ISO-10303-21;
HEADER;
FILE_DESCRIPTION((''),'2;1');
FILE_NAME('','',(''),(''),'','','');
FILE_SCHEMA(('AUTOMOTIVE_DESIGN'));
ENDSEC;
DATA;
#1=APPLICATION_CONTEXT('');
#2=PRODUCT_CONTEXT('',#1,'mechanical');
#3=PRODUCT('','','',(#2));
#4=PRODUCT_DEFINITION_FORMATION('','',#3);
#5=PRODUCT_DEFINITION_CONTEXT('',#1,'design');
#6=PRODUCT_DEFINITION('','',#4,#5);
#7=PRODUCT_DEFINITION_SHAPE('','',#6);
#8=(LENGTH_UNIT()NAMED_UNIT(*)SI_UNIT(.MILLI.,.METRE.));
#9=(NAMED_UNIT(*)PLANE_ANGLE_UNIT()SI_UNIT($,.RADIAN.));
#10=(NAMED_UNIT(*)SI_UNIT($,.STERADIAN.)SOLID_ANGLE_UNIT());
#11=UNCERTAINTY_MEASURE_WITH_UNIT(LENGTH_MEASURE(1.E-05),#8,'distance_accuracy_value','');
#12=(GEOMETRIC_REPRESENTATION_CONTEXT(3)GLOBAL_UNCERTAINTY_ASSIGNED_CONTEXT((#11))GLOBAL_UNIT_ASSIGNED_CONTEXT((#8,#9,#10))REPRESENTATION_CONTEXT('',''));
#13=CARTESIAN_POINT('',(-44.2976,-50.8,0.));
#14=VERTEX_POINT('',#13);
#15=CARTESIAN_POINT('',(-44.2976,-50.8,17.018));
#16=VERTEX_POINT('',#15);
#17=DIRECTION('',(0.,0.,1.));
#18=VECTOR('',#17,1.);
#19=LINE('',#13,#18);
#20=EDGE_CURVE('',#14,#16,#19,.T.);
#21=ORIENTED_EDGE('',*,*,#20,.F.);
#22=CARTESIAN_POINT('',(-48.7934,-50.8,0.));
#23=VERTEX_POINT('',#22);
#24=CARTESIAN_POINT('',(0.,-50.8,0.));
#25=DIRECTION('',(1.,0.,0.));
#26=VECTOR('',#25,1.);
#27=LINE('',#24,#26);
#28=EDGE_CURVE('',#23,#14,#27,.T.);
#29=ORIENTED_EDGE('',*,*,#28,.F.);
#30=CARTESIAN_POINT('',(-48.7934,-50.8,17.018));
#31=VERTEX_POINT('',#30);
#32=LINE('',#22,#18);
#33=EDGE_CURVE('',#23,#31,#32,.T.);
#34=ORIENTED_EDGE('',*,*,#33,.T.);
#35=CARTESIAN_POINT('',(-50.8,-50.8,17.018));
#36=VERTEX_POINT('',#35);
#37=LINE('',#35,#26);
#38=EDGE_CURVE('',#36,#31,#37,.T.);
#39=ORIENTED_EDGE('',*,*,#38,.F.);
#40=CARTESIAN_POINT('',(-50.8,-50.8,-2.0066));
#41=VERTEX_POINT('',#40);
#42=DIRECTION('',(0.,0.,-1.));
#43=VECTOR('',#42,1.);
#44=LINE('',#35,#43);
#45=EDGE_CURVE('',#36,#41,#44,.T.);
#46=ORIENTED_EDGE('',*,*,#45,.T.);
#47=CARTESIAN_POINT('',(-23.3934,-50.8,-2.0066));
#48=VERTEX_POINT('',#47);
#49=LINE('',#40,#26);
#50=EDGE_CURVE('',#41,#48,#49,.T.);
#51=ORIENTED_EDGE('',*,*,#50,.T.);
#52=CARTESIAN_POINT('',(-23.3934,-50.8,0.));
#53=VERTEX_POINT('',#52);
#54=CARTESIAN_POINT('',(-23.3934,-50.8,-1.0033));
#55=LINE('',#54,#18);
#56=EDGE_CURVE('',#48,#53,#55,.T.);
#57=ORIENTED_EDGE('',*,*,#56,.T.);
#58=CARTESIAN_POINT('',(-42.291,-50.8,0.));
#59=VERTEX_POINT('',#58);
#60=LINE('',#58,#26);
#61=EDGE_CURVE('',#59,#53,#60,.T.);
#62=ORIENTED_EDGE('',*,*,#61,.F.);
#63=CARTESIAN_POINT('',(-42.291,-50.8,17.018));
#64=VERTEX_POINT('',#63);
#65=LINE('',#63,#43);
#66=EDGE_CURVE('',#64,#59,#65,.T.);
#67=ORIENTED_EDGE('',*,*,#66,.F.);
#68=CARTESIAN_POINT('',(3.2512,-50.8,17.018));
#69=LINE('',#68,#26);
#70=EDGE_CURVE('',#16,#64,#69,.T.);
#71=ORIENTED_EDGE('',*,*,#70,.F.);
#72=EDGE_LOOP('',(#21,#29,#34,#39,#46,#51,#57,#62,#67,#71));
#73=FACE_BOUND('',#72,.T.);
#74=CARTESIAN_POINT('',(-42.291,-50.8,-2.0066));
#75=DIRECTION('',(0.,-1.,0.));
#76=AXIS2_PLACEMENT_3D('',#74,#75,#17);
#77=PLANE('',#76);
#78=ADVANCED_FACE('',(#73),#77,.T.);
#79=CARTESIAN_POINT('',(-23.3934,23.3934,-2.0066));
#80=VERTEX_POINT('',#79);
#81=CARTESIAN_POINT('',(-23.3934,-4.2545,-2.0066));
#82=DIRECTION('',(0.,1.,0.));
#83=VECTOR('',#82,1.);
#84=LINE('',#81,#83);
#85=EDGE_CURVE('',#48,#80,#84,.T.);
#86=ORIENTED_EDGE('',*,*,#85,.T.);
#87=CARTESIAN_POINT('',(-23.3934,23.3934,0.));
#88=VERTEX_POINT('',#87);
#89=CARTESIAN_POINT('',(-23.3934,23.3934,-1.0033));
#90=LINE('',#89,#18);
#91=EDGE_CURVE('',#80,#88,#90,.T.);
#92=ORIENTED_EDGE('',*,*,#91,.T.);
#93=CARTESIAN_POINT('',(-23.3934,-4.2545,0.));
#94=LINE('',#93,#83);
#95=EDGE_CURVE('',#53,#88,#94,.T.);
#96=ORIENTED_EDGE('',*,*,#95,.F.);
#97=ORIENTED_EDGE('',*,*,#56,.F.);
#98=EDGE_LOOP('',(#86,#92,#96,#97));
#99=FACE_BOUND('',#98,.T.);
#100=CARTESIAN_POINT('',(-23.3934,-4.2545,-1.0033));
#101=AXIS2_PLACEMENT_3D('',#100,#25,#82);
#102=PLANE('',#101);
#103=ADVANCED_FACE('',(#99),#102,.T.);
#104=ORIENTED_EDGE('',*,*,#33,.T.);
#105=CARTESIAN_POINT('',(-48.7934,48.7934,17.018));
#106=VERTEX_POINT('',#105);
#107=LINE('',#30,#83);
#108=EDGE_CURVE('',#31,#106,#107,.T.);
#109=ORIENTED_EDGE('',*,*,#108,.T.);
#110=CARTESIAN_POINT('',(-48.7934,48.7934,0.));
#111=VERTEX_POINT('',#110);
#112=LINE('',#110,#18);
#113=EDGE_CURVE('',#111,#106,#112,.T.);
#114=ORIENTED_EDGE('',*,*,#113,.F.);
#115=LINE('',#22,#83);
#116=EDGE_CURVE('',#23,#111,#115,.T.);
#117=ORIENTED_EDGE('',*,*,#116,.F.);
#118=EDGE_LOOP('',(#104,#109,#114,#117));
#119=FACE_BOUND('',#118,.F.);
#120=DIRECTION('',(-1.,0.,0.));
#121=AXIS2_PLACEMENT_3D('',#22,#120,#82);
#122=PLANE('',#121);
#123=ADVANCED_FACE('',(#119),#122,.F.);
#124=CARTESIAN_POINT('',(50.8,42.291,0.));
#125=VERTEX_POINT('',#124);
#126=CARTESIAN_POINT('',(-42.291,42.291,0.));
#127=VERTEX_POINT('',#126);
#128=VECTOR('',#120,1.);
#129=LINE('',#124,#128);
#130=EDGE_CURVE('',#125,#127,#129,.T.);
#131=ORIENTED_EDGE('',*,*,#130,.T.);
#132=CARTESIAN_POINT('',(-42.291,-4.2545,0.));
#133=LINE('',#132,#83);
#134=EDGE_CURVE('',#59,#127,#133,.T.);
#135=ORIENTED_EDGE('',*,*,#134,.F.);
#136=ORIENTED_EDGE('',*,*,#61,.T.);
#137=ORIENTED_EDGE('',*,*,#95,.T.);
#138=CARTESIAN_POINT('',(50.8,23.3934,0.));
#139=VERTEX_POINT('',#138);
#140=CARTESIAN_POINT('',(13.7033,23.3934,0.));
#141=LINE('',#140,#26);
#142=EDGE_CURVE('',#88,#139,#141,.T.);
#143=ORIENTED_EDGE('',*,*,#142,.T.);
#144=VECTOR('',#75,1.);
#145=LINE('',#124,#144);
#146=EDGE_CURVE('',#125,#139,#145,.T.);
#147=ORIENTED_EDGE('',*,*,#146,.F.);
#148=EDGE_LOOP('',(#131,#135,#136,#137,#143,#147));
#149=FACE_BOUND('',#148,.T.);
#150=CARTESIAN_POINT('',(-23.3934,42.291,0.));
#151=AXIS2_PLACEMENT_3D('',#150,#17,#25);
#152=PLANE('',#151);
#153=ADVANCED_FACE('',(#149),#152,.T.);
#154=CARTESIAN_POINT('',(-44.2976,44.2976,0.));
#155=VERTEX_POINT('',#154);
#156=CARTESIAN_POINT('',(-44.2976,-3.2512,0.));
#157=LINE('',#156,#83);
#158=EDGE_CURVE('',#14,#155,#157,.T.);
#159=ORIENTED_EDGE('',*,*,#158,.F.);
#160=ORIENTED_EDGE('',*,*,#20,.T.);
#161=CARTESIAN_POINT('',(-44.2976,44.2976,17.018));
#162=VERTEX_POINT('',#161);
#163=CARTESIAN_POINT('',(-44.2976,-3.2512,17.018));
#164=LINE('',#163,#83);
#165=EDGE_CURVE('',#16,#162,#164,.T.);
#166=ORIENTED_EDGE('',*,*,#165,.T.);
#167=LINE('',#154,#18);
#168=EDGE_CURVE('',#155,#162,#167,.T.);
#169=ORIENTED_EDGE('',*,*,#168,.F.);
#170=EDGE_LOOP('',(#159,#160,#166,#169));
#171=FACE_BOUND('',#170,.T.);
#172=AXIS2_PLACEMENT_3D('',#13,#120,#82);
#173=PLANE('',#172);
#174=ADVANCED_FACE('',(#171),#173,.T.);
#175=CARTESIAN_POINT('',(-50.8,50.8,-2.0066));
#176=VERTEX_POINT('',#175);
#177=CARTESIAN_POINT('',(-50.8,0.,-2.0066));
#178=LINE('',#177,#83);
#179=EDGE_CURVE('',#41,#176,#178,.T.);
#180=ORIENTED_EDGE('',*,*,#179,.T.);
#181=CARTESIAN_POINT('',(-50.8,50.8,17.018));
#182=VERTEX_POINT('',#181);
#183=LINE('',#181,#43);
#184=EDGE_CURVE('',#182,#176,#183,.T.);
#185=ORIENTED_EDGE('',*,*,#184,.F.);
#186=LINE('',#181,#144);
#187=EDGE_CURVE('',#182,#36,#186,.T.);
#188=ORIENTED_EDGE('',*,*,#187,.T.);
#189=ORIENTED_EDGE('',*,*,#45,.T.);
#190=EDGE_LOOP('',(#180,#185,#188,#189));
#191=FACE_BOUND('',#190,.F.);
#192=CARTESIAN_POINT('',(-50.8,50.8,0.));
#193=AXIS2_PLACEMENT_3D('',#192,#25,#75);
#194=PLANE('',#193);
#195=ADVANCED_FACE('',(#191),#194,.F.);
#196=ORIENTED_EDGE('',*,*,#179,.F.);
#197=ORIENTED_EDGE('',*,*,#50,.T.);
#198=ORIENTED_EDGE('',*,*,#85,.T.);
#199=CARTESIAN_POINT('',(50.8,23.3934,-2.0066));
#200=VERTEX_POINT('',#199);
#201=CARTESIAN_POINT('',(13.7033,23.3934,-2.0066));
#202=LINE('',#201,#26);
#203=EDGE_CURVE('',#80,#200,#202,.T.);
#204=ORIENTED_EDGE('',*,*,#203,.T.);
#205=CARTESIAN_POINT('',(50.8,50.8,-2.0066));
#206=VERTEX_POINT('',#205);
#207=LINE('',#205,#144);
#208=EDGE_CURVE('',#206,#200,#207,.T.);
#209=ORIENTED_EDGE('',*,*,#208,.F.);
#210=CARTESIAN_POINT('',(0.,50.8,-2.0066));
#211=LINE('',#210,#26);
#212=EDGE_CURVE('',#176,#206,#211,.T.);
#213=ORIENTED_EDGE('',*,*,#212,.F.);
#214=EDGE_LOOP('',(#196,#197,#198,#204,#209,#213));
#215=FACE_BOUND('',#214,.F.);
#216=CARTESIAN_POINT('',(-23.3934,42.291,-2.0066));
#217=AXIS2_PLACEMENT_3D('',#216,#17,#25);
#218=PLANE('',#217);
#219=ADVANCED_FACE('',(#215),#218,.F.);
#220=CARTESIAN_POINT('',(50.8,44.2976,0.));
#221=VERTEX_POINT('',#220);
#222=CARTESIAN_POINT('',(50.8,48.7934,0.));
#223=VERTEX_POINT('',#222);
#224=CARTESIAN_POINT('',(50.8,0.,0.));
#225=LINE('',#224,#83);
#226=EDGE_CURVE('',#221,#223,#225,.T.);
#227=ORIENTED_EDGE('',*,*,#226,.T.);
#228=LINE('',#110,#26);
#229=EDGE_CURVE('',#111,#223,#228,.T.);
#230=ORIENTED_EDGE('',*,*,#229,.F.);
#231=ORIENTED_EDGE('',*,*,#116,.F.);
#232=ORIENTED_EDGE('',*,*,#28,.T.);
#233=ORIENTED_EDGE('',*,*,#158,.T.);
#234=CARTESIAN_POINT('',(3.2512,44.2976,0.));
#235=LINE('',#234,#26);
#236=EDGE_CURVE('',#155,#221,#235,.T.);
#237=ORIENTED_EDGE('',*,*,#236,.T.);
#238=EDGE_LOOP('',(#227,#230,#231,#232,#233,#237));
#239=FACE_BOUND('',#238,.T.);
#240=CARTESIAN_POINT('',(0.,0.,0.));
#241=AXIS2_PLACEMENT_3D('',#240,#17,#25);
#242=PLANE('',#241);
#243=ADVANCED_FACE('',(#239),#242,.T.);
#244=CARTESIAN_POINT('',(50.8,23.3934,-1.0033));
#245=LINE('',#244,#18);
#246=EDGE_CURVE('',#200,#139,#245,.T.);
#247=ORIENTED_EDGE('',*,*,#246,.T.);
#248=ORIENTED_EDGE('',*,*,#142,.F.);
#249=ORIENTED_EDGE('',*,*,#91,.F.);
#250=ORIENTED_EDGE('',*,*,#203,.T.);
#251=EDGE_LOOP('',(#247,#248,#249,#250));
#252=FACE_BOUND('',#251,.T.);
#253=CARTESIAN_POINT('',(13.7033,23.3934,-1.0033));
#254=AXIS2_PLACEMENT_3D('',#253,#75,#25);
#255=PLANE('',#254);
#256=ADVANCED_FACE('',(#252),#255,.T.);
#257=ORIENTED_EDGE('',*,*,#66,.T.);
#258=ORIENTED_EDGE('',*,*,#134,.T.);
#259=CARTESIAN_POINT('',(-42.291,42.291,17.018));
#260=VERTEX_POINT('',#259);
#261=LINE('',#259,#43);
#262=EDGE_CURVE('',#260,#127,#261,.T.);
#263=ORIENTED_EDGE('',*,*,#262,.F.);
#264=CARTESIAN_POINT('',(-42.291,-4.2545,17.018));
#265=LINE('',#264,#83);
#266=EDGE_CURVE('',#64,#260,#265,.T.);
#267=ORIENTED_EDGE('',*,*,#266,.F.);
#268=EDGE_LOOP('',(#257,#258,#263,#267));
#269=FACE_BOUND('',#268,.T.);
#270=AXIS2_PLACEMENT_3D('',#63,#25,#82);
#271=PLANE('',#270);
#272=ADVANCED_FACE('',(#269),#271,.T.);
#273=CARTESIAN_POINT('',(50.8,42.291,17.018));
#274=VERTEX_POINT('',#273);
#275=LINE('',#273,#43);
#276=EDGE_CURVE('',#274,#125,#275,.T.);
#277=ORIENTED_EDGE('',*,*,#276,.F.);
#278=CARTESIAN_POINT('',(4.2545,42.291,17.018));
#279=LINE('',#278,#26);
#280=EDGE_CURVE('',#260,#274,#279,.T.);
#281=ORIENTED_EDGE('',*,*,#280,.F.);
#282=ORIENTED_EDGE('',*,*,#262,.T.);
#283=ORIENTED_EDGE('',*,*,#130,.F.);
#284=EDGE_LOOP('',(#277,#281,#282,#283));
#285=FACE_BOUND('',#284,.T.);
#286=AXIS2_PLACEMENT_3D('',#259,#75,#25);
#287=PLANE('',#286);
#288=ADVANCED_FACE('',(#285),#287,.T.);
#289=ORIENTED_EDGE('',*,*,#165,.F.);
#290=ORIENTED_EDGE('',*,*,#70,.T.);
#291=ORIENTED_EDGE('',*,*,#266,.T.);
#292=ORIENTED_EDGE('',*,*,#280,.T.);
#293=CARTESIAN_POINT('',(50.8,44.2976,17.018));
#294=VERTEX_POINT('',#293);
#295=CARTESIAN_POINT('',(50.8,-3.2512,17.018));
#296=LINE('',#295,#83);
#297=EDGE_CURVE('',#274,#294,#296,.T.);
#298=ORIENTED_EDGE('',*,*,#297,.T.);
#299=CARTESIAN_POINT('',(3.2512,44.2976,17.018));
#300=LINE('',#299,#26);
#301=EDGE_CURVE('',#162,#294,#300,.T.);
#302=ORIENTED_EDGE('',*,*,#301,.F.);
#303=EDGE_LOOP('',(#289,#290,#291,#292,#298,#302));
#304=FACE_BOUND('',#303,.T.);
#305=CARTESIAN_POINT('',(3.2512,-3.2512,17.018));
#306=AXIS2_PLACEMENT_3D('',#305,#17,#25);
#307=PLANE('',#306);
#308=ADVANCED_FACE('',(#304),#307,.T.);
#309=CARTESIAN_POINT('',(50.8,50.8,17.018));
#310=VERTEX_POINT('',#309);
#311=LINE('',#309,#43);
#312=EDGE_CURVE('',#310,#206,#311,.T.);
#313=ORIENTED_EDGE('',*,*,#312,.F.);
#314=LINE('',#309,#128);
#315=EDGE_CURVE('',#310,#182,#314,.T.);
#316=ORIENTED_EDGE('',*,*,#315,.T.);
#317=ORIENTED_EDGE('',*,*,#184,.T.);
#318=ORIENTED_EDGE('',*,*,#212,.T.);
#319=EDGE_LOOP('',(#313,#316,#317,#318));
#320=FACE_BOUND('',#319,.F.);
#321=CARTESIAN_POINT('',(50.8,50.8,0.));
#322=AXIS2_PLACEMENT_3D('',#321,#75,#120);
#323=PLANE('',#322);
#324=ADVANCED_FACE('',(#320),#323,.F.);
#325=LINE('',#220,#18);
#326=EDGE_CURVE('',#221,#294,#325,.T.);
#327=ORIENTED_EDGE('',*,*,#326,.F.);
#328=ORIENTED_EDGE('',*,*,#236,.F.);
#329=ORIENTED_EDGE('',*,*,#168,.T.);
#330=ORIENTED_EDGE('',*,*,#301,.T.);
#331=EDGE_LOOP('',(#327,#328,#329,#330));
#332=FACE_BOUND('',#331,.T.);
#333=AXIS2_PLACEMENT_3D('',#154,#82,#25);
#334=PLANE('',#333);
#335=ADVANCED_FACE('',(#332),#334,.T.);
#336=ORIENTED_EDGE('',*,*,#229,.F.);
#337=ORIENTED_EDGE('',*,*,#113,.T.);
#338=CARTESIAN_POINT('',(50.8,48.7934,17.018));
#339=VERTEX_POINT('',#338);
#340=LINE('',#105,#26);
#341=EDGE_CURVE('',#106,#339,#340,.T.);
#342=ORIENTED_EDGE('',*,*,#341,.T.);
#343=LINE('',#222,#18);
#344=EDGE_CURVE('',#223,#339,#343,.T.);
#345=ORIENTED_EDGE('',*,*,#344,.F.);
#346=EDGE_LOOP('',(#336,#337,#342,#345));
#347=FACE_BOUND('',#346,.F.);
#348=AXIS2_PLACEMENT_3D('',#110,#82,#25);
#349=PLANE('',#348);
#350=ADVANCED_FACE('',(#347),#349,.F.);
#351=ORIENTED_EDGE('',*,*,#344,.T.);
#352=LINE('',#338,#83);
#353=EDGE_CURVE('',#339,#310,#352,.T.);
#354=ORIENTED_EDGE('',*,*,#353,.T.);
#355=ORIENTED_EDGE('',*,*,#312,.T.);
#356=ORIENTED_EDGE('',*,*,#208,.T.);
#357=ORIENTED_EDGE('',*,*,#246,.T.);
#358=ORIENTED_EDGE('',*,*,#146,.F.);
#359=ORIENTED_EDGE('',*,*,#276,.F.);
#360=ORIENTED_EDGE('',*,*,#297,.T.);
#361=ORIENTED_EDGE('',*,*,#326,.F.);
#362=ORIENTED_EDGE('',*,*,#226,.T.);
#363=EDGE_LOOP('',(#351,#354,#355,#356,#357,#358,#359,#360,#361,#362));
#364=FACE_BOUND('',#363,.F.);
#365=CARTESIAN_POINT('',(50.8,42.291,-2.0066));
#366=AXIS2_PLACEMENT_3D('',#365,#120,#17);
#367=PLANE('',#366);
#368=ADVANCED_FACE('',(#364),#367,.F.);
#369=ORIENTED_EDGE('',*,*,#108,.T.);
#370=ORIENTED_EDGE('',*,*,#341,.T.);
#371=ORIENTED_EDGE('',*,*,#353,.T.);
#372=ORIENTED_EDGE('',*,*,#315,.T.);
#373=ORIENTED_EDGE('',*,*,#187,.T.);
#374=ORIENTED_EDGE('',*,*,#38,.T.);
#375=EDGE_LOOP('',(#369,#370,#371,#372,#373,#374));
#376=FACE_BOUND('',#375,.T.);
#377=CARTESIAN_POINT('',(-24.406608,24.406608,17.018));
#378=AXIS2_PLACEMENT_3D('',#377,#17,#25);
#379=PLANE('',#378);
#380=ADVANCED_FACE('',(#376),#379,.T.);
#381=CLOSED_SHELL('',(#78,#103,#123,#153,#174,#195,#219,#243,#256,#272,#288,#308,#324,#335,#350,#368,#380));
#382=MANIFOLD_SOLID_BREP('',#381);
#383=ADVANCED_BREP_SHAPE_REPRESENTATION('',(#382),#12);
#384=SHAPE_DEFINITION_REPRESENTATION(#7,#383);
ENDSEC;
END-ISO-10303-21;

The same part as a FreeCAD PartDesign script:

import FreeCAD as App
import Part
import Sketcher

V = App.Vector
Q = App.Units.Quantity


def add_polygon(sketch, points):
    """Adds a closed chain of lines whose ends are joined by coincident constraints."""
    first, n = sketch.GeometryCount, len(points)
    for a, b in zip(points, points[1:] + points[:1]):
        sketch.addGeometry(Part.LineSegment(App.Vector(*a, 0), App.Vector(*b, 0)), False)
    for i in range(n):
        sketch.addConstraint(Sketcher.Constraint("Coincident", first + i, 2, first + (i + 1) % n, 1))

doc = App.newDocument("Part")
body = doc.addObject("PartDesign::Body", "Body")

# Sketch on XY plane
sketch1 = body.newObject("Sketcher::SketchObject", "Sketch")
sketch1.AttachmentSupport = (doc.getObject("XY_Plane"), [""])
sketch1.MapMode = "FlatFace"
add_polygon(sketch1, [(-51, 51), (-51, -51), (51, -51), (51, 51)])  # lines 0-3
sketch1.addConstraint([
    Sketcher.Constraint("Vertical", 0),
    Sketcher.Constraint("Horizontal", 1),
    Sketcher.Constraint("Vertical", 2),
    Sketcher.Constraint("Horizontal", 3),
    Sketcher.Constraint("Symmetric", 0, 2, 2, 2, -1, 1),
    Sketcher.Constraint("Equal", 3, 0),
    Sketcher.Constraint("DistanceX", 1, 1, 1, 2, Q("4 in")),
])
pad1 = body.newObject("PartDesign::Pad", "Pad")
pad1.Profile = sketch1
pad1.Length = Q("0.079 in")
pad1.Reversed = True

# Sketch on XY plane
sketch2 = body.newObject("Sketcher::SketchObject", "Sketch001")
sketch2.AttachmentSupport = (doc.getObject("XY_Plane"), [""])
sketch2.MapMode = "FlatFace"
add_polygon(sketch2, [(-50.8, -50.8), (-48.8, -50.8), (-48.8, 48.8), (50.8, 48.8), (50.8, 50.8), (-50.8, 50.8)])  # lines 0-5
sketch2.addConstraint([
    Sketcher.Constraint("Horizontal", 0),
    Sketcher.Constraint("Vertical", 1),
    Sketcher.Constraint("Horizontal", 2),
    Sketcher.Constraint("Vertical", 3),
    Sketcher.Constraint("Horizontal", 4),
    Sketcher.Constraint("Vertical", 5),
    Sketcher.Constraint("Symmetric", 3, 2, 5, 2, -1, 1),
    Sketcher.Constraint("Equal", 2, 1),
    Sketcher.Constraint("Equal", 0, 3),
    Sketcher.Constraint("DistanceX", 4, 2, 4, 1, Q("4 in")),
    Sketcher.Constraint("DistanceX", 0, 1, 0, 2, Q("0.079 in")),
])
pad2 = body.newObject("PartDesign::Pad", "Pad001")
pad2.Profile = sketch2
pad2.Length = Q("0.67 in")

# Sketch on XY plane
sketch3 = body.newObject("Sketcher::SketchObject", "Sketch002")
sketch3.AttachmentSupport = (doc.getObject("XY_Plane"), [""])
sketch3.MapMode = "FlatFace"
add_polygon(sketch3, [(-44, 44), (-44, -51), (51, -51), (51, 44)])  # lines 0-3
sketch3.addConstraint([
    Sketcher.Constraint("Vertical", 0),
    Sketcher.Constraint("Horizontal", 1),
    Sketcher.Constraint("Vertical", 2),
    Sketcher.Constraint("Horizontal", 3),
    Sketcher.Constraint("Equal", 3, 0),
    Sketcher.Constraint("DistanceY", 0, 2, -1, 1, Q("2 in")),
    Sketcher.Constraint("DistanceX", -1, 1, 1, 2, Q("2 in")),
    Sketcher.Constraint("DistanceX", 1, 1, 1, 2, Q("3.744 in")),
])
pad3 = body.newObject("PartDesign::Pad", "Pad002")
pad3.Profile = sketch3
pad3.Length = Q("0.67 in")

# Sketch on XY plane
sketch4 = body.newObject("Sketcher::SketchObject", "Sketch003")
sketch4.AttachmentSupport = (doc.getObject("XY_Plane"), [""])
sketch4.MapMode = "FlatFace"
sketch4.AttachmentOffset = App.Placement(V(0, 0, 0.67 * 25.4), App.Rotation())
add_polygon(sketch4, [(-42, 42), (-42, -51), (51, -51), (51, 42)])  # lines 0-3
sketch4.addConstraint([
    Sketcher.Constraint("Vertical", 0),
    Sketcher.Constraint("Horizontal", 1),
    Sketcher.Constraint("Vertical", 2),
    Sketcher.Constraint("Horizontal", 3),
    Sketcher.Constraint("Equal", 3, 0),
    Sketcher.Constraint("DistanceY", 0, 2, -1, 1, Q("2 in")),
    Sketcher.Constraint("DistanceX", -1, 1, 1, 2, Q("2 in")),
    Sketcher.Constraint("DistanceX", 1, 1, 1, 2, Q("3.665 in")),
])
pocket1 = body.newObject("PartDesign::Pocket", "Pocket")
pocket1.Profile = sketch4
pocket1.Type = "ThroughAll"

# Sketch on YZ plane
sketch5 = body.newObject("Sketcher::SketchObject", "Sketch004")
sketch5.AttachmentSupport = (doc.getObject("YZ_Plane"), [""])
sketch5.MapMode = "FlatFace"
sketch5.AttachmentOffset = App.Placement(V(0, 0, -1.665 * 25.4), App.Rotation())
add_polygon(sketch5, [(-50.8, 0), (-50.8, -2), (42.3, -2), (42.3, 0)])  # lines 0-3
sketch5.addConstraint([
    Sketcher.Constraint("Vertical", 0),
    Sketcher.Constraint("Horizontal", 1),
    Sketcher.Constraint("Vertical", 2),
    Sketcher.Constraint("Horizontal", 3),
    Sketcher.Constraint("PointOnObject", 2, 2, -1),
    Sketcher.Constraint("DistanceX", 0, 2, -1, 1, Q("2 in")),
    Sketcher.Constraint("DistanceX", 1, 1, 1, 2, Q("3.665 in")),
    Sketcher.Constraint("DistanceY", 0, 2, 0, 1, Q("0.079 in")),
])
pad4 = body.newObject("PartDesign::Pad", "Pad003")
pad4.Profile = sketch5
pad4.Length = Q("0.744 in")

# Sketch on XZ plane
sketch6 = body.newObject("Sketcher::SketchObject", "Sketch005")
sketch6.AttachmentSupport = (doc.getObject("XZ_Plane"), [""])
sketch6.MapMode = "FlatFace"
sketch6.AttachmentOffset = App.Placement(V(0, 0, -1.665 * 25.4), App.Rotation())
add_polygon(sketch6, [(-23.4, 0), (-23.4, -2), (50.8, -2), (50.8, 0)])  # lines 0-3
sketch6.addConstraint([
    Sketcher.Constraint("Vertical", 0),
    Sketcher.Constraint("Horizontal", 1),
    Sketcher.Constraint("Vertical", 2),
    Sketcher.Constraint("Horizontal", 3),
    Sketcher.Constraint("PointOnObject", 2, 2, -1),
    Sketcher.Constraint("DistanceX", -1, 1, 1, 2, Q("2 in")),
    Sketcher.Constraint("DistanceX", 1, 1, 1, 2, Q("2.921 in")),
    Sketcher.Constraint("DistanceY", 0, 2, 0, 1, Q("0.079 in")),
])
pad5 = body.newObject("PartDesign::Pad", "Pad004")
pad5.Profile = sketch6
pad5.Length = Q("0.744 in")

doc.recompute()
